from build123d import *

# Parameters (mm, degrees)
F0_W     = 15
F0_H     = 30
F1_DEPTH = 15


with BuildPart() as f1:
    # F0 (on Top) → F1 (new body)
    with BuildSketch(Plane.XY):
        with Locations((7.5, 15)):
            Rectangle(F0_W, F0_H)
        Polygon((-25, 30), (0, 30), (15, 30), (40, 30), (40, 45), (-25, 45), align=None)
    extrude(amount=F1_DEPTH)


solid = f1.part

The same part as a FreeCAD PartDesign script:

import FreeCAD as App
import Part
import Sketcher
from FreeCAD import Vector

doc = App.newDocument("Part")
body = doc.addObject("PartDesign::Body", "Body")

# Sketch on XY plane
sketch1 = body.newObject("Sketcher::SketchObject", "Sketch")
sketch1.AttachmentSupport = (doc.getObject("XY_Plane"), [""])
sketch1.MapMode = "FlatFace"
sketch1.addGeometry([
    Part.LineSegment(Vector(0, 30, 0), Vector(0, 0, 0)),  # 0
    Part.LineSegment(Vector(0, 0, 0), Vector(15, 0, 0)),  # 1
    Part.LineSegment(Vector(15, 0, 0), Vector(15, 30, 0)),  # 2
    Part.LineSegment(Vector(15, 30, 0), Vector(40, 30, 0)),  # 3
    Part.LineSegment(Vector(40, 30, 0), Vector(40, 45, 0)),  # 4
    Part.LineSegment(Vector(40, 45, 0), Vector(-25, 45, 0)),  # 5
    Part.LineSegment(Vector(-25, 45, 0), Vector(-25, 30, 0)),  # 6
    Part.LineSegment(Vector(-25, 30, 0), Vector(0, 30, 0)),  # 7
], False)
sketch1.addConstraint([
    Sketcher.Constraint("Coincident", 0, 2, 1, 1),
    Sketcher.Constraint("Coincident", 1, 2, 2, 1),
    Sketcher.Constraint("Coincident", 2, 2, 3, 1),
    Sketcher.Constraint("Coincident", 3, 2, 4, 1),
    Sketcher.Constraint("Coincident", 4, 2, 5, 1),
    Sketcher.Constraint("Coincident", 5, 2, 6, 1),
    Sketcher.Constraint("Coincident", 6, 2, 7, 1),
    Sketcher.Constraint("Coincident", 7, 2, 0, 1),
    Sketcher.Constraint("Vertical", 0),
    Sketcher.Constraint("Horizontal", 1),
    Sketcher.Constraint("Vertical", 2),
    Sketcher.Constraint("Horizontal", 3),
    Sketcher.Constraint("Vertical", 4),
    Sketcher.Constraint("Horizontal", 5),
    Sketcher.Constraint("Vertical", 6),
    Sketcher.Constraint("Horizontal", 7),
    Sketcher.Constraint("Coincident", 0, 2, -1, 1),
    Sketcher.Constraint("Horizontal", 3, 2, 6, 2),
    Sketcher.Constraint("Equal", 3, 7),
    Sketcher.Constraint("Equal", 1, 4),
    Sketcher.Constraint("DistanceX", 1, 1, 1, 2, 15.0),
    Sketcher.Constraint("DistanceX", 3, 1, 3, 2, 25.0),
    Sketcher.Constraint("DistanceY", 0, 2, 0, 1, 30.0),
])
pad1 = body.newObject("PartDesign::Pad", "Pad")
pad1.Profile = sketch1
pad1.Length = 15

doc.recompute()
